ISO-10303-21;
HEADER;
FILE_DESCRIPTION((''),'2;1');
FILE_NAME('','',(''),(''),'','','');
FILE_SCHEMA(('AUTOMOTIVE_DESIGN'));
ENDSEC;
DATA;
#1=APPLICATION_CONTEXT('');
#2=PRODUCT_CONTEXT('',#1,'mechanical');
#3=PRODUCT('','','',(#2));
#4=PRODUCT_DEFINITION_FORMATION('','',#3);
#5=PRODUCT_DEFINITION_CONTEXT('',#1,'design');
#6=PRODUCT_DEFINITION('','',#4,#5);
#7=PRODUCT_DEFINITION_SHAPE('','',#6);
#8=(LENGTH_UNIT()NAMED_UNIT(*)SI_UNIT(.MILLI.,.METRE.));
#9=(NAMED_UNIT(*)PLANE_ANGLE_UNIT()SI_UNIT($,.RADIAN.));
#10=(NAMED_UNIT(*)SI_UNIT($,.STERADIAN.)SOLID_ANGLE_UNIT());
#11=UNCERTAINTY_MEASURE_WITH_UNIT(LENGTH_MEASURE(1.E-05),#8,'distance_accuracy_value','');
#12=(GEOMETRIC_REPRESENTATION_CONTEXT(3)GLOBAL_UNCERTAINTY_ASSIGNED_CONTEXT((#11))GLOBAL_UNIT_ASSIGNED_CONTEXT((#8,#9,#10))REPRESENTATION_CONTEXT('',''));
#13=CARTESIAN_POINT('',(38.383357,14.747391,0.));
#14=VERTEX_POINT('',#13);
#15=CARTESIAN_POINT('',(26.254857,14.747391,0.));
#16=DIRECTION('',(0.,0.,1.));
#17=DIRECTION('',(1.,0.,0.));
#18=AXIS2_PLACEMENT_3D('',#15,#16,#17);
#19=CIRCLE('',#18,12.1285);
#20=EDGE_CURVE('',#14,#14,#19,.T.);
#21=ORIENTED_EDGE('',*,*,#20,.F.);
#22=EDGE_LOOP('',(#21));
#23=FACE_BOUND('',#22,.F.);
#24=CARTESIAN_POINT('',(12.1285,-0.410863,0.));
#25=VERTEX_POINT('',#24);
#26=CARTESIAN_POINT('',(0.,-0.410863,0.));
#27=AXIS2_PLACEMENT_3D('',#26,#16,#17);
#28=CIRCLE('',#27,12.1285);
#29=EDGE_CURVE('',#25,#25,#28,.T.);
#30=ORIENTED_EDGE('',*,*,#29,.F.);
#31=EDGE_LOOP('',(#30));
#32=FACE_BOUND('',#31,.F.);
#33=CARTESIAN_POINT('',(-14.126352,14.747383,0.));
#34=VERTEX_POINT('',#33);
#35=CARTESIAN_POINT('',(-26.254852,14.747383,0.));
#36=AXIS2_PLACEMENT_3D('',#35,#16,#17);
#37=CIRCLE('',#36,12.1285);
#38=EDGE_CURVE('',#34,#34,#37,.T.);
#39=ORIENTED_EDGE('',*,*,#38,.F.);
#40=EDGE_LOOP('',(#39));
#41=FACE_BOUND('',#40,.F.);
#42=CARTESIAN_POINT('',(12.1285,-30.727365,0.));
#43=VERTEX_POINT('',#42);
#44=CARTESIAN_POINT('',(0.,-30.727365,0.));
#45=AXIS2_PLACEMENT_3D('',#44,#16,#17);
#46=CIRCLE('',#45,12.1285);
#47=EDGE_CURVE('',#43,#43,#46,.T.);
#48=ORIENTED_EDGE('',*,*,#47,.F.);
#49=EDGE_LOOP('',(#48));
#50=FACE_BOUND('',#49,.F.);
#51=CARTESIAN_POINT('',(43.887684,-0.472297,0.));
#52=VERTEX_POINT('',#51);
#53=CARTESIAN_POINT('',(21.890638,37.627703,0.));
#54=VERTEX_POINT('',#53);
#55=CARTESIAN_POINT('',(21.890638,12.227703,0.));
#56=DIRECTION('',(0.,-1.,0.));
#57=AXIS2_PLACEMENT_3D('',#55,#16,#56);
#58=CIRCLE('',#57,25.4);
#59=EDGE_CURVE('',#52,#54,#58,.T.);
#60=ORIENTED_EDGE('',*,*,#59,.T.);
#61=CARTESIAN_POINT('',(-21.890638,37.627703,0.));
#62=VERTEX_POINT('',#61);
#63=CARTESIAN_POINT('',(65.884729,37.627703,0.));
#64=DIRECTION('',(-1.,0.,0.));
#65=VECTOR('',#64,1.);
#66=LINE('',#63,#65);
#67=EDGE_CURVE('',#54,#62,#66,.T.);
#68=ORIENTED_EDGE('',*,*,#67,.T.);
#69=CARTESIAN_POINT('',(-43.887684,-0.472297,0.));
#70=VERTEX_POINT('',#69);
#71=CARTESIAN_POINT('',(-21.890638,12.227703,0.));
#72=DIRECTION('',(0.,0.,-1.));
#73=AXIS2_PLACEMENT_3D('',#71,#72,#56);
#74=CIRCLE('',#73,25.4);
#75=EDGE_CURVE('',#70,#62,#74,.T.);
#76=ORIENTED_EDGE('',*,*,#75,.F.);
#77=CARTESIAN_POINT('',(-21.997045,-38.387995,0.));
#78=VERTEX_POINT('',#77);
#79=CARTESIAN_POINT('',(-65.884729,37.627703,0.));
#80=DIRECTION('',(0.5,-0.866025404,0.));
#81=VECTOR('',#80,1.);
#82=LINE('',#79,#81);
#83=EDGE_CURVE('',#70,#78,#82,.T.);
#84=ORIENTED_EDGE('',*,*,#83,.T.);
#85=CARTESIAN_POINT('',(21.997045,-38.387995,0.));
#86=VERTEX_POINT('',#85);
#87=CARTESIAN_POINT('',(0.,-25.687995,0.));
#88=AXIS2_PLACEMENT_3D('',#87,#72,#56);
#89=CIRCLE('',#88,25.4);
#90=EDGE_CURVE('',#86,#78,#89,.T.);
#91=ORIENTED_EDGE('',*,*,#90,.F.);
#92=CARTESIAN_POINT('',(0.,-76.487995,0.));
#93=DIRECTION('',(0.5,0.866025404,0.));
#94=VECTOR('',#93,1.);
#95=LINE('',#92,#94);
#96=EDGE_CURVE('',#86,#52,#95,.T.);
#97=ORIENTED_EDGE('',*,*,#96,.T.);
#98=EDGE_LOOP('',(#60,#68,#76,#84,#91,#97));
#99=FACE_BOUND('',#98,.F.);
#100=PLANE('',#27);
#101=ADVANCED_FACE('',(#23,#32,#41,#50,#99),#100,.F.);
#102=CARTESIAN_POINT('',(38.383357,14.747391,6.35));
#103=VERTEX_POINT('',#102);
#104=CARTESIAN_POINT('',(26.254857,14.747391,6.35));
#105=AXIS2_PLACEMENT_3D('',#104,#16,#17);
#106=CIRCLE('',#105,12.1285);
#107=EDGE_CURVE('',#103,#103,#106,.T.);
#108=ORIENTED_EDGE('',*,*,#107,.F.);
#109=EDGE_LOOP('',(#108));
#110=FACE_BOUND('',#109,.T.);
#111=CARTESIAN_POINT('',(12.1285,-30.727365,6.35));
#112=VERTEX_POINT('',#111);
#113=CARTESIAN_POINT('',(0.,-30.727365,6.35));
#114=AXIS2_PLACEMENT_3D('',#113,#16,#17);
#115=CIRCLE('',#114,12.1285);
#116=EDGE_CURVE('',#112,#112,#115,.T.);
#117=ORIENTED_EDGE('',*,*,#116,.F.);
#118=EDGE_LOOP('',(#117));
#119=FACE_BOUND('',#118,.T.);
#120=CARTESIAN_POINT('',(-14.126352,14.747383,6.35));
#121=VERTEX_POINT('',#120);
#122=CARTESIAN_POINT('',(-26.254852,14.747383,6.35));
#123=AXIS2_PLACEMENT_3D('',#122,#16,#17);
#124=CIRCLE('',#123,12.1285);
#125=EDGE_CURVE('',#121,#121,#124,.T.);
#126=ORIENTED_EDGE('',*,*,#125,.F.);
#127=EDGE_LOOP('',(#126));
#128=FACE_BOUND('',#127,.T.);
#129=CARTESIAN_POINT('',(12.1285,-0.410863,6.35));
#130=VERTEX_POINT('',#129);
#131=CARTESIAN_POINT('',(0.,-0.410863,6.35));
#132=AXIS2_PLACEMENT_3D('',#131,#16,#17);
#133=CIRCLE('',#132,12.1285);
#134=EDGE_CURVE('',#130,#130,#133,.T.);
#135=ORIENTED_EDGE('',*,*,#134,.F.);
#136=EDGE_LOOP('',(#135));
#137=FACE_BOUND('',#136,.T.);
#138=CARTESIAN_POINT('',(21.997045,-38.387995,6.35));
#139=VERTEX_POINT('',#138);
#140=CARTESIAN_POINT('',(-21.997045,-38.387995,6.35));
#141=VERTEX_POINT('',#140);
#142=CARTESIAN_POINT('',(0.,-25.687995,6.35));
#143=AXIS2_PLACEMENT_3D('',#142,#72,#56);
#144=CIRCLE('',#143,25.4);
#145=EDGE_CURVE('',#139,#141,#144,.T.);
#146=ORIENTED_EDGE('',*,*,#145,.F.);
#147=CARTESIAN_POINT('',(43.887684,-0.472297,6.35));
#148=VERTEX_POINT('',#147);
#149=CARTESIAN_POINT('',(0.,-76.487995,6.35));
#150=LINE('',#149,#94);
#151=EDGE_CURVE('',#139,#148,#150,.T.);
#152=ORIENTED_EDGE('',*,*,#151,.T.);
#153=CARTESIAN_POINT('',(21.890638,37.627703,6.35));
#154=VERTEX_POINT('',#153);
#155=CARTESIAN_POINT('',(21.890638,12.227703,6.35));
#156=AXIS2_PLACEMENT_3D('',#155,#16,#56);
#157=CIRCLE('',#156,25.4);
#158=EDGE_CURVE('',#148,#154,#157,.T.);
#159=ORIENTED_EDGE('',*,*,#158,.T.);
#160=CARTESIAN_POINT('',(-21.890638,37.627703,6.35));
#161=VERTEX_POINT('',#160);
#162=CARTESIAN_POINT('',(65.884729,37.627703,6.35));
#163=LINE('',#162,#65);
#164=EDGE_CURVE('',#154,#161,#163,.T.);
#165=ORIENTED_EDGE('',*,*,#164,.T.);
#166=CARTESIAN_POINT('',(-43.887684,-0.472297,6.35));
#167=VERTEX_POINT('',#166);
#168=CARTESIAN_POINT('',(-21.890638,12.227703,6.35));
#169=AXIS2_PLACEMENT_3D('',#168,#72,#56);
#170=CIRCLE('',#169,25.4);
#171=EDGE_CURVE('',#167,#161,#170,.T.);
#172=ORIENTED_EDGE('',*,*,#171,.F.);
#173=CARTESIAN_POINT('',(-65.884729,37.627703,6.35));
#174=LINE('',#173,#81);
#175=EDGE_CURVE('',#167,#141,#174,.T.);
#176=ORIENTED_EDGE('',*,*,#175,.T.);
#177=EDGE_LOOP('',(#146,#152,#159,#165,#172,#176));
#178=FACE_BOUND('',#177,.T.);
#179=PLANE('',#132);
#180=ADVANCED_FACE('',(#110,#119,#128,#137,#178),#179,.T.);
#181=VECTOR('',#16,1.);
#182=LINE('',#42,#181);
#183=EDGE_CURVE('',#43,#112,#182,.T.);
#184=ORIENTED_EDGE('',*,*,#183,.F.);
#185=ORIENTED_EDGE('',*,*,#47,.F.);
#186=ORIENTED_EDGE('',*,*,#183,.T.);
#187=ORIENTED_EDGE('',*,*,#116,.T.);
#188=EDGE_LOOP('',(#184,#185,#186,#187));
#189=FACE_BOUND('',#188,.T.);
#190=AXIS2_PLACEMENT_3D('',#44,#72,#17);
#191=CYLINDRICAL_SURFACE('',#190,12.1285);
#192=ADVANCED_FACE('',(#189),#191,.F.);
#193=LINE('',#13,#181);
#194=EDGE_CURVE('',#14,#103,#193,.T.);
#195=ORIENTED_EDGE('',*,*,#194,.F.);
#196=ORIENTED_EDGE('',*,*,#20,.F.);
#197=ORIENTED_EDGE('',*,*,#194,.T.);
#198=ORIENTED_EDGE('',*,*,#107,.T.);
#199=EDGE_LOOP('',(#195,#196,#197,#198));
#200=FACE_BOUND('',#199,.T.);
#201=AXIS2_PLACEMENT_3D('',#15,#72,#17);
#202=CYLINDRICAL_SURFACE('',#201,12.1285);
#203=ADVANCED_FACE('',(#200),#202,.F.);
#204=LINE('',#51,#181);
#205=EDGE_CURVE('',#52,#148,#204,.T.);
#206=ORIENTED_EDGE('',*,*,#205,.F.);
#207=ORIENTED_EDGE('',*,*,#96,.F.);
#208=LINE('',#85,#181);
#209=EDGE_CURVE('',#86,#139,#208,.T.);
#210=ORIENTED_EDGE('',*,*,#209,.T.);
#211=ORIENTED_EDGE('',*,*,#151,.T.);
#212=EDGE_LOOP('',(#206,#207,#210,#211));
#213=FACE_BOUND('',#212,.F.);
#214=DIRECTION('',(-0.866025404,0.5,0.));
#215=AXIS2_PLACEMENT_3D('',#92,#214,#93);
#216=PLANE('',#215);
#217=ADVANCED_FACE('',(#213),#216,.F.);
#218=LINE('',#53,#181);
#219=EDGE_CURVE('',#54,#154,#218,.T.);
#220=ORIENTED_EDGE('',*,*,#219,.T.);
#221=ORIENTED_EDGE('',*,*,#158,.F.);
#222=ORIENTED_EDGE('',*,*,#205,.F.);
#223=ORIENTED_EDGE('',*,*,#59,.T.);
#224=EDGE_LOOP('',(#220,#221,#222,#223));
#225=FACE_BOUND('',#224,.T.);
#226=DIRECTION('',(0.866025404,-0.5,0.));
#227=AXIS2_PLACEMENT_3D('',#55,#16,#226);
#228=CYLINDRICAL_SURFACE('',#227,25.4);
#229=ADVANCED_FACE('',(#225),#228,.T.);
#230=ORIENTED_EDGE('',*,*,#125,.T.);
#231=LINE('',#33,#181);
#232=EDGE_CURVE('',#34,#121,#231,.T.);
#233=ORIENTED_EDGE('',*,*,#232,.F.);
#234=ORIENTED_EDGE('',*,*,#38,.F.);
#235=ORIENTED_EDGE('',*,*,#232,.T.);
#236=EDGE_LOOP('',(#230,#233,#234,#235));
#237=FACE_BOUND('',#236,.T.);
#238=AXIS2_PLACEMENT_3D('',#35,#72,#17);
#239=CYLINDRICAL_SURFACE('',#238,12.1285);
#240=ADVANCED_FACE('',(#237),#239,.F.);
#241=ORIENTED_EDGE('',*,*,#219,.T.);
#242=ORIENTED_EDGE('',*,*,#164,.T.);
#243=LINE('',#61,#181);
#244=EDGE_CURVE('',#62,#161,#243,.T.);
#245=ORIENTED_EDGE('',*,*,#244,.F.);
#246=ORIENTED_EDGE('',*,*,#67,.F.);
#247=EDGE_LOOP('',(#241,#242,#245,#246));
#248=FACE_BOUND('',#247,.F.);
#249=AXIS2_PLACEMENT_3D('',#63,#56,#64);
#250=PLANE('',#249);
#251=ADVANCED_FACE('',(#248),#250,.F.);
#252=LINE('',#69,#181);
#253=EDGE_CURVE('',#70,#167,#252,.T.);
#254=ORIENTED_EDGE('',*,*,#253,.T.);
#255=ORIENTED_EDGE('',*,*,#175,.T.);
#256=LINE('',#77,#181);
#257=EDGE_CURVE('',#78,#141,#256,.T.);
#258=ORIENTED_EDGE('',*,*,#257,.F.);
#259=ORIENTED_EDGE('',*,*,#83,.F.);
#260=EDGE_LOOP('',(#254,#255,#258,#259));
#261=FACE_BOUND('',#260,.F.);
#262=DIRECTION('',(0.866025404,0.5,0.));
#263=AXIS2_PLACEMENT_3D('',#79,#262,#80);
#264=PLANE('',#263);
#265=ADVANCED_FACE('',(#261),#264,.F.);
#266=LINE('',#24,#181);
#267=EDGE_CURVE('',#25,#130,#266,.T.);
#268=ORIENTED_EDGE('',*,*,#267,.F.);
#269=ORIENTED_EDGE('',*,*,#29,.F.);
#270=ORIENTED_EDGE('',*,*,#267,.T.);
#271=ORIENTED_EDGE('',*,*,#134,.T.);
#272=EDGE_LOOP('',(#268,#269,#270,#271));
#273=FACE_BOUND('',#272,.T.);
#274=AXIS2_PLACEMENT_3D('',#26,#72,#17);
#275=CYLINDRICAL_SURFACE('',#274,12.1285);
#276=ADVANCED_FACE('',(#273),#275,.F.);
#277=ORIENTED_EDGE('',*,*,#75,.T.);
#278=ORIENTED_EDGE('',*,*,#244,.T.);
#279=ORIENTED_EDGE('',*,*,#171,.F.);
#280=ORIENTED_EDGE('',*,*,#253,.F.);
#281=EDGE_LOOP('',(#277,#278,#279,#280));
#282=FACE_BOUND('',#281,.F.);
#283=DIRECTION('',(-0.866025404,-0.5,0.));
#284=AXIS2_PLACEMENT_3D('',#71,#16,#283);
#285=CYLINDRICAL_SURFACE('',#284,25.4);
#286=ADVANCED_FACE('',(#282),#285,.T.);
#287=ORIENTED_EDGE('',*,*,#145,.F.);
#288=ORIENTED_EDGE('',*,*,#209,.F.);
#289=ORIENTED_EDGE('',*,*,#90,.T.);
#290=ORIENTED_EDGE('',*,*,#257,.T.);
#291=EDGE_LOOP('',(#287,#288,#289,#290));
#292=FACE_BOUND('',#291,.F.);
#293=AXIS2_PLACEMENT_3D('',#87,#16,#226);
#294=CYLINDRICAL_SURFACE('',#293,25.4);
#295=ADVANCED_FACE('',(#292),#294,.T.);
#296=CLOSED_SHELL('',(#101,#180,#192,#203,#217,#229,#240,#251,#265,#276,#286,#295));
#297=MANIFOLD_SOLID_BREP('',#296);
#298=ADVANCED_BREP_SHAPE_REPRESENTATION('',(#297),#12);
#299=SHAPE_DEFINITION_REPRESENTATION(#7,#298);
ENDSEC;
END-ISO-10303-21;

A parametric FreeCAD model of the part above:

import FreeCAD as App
import Part
import Sketcher
Q = App.Units.Quantity


def edges_at(feature, points):
    """Names of the edges that pass closest to the given points."""
    edges = feature.Shape.Edges
    near = lambda p: min(range(len(edges)), key=lambda i: edges[i].distToShape(Part.Vertex(*p))[0])
    return sorted({f"Edge{near(p) + 1}" for p in points})


def add_polygon(sketch, points):
    """Adds a closed chain of lines whose ends are joined by coincident constraints."""
    first, n = sketch.GeometryCount, len(points)
    for a, b in zip(points, points[1:] + points[:1]):
        sketch.addGeometry(Part.LineSegment(App.Vector(*a, 0), App.Vector(*b, 0)), False)
    for i in range(n):
        sketch.addConstraint(Sketcher.Constraint("Coincident", first + i, 2, first + (i + 1) % n, 1))

doc = App.newDocument("Part")
body = doc.addObject("PartDesign::Body", "Body")

sketch1 = doc.addObject("Sketcher::SketchObject", "Sketch")
body.addObject(sketch1)
sketch1.AttachmentSupport = (doc.XY_Plane, [""])
sketch1.MapMode = "FlatFace"
add_polygon(sketch1, [(0, -76), (66, 38), (-66, 38)])
sketch1.addGeometry(Part.Circle(App.Vector(0, -31, 0), App.Vector(0, 0, 1), 12), False)
sketch1.addGeometry(Part.Circle(App.Vector(0, 0, 0), App.Vector(0, 0, 1), 12), False)
sketch1.addGeometry(Part.Circle(App.Vector(-26, 15, 0), App.Vector(0, 0, 1), 12), False)
sketch1.addGeometry(Part.Circle(App.Vector(26, 15, 0), App.Vector(0, 0, 1), 12), False)
sketch1.addConstraint([
    Sketcher.Constraint("Horizontal", 1),
    Sketcher.Constraint("Equal", 3, 4),
    Sketcher.Constraint("Equal", 4, 5),
    Sketcher.Constraint("Equal", 5, 6),
    Sketcher.Constraint("Symmetric", 5, 3, 6, 3, -2),
    Sketcher.Constraint("PointOnObject", 3, 3, -2),
    Sketcher.Constraint("PointOnObject", 4, 3, -2),
    Sketcher.Constraint("PointOnObject", 2, 2, -2),
    Sketcher.Constraint("Equal", 0, 2),
    Sketcher.Constraint("Diameter", 3, Q("0.955 in")),
    Sketcher.Constraint("Angle", 0, Q("60 deg")),
    Sketcher.Constraint("DistanceY", 5, 3, 0, 2, Q("0.9008 in")),
    Sketcher.Constraint("DistanceY", 3, 3, 4, 3, Q("30.316502 mm")),
    Sketcher.Constraint("DistanceX", 1, 2, 1, 1, Q("131.769458 mm")),
    Sketcher.Constraint("DistanceX", 5, 3, -1, 1, Q("26.254852 mm")),
    Sketcher.Constraint("DistanceY", -1, 1, 6, 3, Q("14.747391 mm")),
    Sketcher.Constraint("DistanceY", 2, 2, 3, 3, Q("45.76063 mm")),
])
pad1 = doc.addObject("PartDesign::Pad", "Pad")
body.addObject(pad1)
pad1.Profile = sketch1
pad1.Length = Q("0.25 in")
doc.recompute()

fillet = doc.addObject("PartDesign::Fillet", "Fillet")
body.addObject(fillet)
fillet.Base = (pad1, edges_at(pad1, [(-65.885, 37.628, 3.175)]))
fillet.Radius = Q("1 in")
doc.recompute()

fillet2 = doc.addObject("PartDesign::Fillet", "Fillet001")
body.addObject(fillet2)
fillet2.Base = (fillet, edges_at(fillet, [(65.885, 37.628, 3.175)]))
fillet2.Radius = Q("1 in")
doc.recompute()

fillet3 = doc.addObject("PartDesign::Fillet", "Fillet002")
body.addObject(fillet3)
fillet3.Base = (fillet2, edges_at(fillet2, [(0, -76.488, 3.175)]))
fillet3.Radius = Q("1 in")

doc.recompute()
